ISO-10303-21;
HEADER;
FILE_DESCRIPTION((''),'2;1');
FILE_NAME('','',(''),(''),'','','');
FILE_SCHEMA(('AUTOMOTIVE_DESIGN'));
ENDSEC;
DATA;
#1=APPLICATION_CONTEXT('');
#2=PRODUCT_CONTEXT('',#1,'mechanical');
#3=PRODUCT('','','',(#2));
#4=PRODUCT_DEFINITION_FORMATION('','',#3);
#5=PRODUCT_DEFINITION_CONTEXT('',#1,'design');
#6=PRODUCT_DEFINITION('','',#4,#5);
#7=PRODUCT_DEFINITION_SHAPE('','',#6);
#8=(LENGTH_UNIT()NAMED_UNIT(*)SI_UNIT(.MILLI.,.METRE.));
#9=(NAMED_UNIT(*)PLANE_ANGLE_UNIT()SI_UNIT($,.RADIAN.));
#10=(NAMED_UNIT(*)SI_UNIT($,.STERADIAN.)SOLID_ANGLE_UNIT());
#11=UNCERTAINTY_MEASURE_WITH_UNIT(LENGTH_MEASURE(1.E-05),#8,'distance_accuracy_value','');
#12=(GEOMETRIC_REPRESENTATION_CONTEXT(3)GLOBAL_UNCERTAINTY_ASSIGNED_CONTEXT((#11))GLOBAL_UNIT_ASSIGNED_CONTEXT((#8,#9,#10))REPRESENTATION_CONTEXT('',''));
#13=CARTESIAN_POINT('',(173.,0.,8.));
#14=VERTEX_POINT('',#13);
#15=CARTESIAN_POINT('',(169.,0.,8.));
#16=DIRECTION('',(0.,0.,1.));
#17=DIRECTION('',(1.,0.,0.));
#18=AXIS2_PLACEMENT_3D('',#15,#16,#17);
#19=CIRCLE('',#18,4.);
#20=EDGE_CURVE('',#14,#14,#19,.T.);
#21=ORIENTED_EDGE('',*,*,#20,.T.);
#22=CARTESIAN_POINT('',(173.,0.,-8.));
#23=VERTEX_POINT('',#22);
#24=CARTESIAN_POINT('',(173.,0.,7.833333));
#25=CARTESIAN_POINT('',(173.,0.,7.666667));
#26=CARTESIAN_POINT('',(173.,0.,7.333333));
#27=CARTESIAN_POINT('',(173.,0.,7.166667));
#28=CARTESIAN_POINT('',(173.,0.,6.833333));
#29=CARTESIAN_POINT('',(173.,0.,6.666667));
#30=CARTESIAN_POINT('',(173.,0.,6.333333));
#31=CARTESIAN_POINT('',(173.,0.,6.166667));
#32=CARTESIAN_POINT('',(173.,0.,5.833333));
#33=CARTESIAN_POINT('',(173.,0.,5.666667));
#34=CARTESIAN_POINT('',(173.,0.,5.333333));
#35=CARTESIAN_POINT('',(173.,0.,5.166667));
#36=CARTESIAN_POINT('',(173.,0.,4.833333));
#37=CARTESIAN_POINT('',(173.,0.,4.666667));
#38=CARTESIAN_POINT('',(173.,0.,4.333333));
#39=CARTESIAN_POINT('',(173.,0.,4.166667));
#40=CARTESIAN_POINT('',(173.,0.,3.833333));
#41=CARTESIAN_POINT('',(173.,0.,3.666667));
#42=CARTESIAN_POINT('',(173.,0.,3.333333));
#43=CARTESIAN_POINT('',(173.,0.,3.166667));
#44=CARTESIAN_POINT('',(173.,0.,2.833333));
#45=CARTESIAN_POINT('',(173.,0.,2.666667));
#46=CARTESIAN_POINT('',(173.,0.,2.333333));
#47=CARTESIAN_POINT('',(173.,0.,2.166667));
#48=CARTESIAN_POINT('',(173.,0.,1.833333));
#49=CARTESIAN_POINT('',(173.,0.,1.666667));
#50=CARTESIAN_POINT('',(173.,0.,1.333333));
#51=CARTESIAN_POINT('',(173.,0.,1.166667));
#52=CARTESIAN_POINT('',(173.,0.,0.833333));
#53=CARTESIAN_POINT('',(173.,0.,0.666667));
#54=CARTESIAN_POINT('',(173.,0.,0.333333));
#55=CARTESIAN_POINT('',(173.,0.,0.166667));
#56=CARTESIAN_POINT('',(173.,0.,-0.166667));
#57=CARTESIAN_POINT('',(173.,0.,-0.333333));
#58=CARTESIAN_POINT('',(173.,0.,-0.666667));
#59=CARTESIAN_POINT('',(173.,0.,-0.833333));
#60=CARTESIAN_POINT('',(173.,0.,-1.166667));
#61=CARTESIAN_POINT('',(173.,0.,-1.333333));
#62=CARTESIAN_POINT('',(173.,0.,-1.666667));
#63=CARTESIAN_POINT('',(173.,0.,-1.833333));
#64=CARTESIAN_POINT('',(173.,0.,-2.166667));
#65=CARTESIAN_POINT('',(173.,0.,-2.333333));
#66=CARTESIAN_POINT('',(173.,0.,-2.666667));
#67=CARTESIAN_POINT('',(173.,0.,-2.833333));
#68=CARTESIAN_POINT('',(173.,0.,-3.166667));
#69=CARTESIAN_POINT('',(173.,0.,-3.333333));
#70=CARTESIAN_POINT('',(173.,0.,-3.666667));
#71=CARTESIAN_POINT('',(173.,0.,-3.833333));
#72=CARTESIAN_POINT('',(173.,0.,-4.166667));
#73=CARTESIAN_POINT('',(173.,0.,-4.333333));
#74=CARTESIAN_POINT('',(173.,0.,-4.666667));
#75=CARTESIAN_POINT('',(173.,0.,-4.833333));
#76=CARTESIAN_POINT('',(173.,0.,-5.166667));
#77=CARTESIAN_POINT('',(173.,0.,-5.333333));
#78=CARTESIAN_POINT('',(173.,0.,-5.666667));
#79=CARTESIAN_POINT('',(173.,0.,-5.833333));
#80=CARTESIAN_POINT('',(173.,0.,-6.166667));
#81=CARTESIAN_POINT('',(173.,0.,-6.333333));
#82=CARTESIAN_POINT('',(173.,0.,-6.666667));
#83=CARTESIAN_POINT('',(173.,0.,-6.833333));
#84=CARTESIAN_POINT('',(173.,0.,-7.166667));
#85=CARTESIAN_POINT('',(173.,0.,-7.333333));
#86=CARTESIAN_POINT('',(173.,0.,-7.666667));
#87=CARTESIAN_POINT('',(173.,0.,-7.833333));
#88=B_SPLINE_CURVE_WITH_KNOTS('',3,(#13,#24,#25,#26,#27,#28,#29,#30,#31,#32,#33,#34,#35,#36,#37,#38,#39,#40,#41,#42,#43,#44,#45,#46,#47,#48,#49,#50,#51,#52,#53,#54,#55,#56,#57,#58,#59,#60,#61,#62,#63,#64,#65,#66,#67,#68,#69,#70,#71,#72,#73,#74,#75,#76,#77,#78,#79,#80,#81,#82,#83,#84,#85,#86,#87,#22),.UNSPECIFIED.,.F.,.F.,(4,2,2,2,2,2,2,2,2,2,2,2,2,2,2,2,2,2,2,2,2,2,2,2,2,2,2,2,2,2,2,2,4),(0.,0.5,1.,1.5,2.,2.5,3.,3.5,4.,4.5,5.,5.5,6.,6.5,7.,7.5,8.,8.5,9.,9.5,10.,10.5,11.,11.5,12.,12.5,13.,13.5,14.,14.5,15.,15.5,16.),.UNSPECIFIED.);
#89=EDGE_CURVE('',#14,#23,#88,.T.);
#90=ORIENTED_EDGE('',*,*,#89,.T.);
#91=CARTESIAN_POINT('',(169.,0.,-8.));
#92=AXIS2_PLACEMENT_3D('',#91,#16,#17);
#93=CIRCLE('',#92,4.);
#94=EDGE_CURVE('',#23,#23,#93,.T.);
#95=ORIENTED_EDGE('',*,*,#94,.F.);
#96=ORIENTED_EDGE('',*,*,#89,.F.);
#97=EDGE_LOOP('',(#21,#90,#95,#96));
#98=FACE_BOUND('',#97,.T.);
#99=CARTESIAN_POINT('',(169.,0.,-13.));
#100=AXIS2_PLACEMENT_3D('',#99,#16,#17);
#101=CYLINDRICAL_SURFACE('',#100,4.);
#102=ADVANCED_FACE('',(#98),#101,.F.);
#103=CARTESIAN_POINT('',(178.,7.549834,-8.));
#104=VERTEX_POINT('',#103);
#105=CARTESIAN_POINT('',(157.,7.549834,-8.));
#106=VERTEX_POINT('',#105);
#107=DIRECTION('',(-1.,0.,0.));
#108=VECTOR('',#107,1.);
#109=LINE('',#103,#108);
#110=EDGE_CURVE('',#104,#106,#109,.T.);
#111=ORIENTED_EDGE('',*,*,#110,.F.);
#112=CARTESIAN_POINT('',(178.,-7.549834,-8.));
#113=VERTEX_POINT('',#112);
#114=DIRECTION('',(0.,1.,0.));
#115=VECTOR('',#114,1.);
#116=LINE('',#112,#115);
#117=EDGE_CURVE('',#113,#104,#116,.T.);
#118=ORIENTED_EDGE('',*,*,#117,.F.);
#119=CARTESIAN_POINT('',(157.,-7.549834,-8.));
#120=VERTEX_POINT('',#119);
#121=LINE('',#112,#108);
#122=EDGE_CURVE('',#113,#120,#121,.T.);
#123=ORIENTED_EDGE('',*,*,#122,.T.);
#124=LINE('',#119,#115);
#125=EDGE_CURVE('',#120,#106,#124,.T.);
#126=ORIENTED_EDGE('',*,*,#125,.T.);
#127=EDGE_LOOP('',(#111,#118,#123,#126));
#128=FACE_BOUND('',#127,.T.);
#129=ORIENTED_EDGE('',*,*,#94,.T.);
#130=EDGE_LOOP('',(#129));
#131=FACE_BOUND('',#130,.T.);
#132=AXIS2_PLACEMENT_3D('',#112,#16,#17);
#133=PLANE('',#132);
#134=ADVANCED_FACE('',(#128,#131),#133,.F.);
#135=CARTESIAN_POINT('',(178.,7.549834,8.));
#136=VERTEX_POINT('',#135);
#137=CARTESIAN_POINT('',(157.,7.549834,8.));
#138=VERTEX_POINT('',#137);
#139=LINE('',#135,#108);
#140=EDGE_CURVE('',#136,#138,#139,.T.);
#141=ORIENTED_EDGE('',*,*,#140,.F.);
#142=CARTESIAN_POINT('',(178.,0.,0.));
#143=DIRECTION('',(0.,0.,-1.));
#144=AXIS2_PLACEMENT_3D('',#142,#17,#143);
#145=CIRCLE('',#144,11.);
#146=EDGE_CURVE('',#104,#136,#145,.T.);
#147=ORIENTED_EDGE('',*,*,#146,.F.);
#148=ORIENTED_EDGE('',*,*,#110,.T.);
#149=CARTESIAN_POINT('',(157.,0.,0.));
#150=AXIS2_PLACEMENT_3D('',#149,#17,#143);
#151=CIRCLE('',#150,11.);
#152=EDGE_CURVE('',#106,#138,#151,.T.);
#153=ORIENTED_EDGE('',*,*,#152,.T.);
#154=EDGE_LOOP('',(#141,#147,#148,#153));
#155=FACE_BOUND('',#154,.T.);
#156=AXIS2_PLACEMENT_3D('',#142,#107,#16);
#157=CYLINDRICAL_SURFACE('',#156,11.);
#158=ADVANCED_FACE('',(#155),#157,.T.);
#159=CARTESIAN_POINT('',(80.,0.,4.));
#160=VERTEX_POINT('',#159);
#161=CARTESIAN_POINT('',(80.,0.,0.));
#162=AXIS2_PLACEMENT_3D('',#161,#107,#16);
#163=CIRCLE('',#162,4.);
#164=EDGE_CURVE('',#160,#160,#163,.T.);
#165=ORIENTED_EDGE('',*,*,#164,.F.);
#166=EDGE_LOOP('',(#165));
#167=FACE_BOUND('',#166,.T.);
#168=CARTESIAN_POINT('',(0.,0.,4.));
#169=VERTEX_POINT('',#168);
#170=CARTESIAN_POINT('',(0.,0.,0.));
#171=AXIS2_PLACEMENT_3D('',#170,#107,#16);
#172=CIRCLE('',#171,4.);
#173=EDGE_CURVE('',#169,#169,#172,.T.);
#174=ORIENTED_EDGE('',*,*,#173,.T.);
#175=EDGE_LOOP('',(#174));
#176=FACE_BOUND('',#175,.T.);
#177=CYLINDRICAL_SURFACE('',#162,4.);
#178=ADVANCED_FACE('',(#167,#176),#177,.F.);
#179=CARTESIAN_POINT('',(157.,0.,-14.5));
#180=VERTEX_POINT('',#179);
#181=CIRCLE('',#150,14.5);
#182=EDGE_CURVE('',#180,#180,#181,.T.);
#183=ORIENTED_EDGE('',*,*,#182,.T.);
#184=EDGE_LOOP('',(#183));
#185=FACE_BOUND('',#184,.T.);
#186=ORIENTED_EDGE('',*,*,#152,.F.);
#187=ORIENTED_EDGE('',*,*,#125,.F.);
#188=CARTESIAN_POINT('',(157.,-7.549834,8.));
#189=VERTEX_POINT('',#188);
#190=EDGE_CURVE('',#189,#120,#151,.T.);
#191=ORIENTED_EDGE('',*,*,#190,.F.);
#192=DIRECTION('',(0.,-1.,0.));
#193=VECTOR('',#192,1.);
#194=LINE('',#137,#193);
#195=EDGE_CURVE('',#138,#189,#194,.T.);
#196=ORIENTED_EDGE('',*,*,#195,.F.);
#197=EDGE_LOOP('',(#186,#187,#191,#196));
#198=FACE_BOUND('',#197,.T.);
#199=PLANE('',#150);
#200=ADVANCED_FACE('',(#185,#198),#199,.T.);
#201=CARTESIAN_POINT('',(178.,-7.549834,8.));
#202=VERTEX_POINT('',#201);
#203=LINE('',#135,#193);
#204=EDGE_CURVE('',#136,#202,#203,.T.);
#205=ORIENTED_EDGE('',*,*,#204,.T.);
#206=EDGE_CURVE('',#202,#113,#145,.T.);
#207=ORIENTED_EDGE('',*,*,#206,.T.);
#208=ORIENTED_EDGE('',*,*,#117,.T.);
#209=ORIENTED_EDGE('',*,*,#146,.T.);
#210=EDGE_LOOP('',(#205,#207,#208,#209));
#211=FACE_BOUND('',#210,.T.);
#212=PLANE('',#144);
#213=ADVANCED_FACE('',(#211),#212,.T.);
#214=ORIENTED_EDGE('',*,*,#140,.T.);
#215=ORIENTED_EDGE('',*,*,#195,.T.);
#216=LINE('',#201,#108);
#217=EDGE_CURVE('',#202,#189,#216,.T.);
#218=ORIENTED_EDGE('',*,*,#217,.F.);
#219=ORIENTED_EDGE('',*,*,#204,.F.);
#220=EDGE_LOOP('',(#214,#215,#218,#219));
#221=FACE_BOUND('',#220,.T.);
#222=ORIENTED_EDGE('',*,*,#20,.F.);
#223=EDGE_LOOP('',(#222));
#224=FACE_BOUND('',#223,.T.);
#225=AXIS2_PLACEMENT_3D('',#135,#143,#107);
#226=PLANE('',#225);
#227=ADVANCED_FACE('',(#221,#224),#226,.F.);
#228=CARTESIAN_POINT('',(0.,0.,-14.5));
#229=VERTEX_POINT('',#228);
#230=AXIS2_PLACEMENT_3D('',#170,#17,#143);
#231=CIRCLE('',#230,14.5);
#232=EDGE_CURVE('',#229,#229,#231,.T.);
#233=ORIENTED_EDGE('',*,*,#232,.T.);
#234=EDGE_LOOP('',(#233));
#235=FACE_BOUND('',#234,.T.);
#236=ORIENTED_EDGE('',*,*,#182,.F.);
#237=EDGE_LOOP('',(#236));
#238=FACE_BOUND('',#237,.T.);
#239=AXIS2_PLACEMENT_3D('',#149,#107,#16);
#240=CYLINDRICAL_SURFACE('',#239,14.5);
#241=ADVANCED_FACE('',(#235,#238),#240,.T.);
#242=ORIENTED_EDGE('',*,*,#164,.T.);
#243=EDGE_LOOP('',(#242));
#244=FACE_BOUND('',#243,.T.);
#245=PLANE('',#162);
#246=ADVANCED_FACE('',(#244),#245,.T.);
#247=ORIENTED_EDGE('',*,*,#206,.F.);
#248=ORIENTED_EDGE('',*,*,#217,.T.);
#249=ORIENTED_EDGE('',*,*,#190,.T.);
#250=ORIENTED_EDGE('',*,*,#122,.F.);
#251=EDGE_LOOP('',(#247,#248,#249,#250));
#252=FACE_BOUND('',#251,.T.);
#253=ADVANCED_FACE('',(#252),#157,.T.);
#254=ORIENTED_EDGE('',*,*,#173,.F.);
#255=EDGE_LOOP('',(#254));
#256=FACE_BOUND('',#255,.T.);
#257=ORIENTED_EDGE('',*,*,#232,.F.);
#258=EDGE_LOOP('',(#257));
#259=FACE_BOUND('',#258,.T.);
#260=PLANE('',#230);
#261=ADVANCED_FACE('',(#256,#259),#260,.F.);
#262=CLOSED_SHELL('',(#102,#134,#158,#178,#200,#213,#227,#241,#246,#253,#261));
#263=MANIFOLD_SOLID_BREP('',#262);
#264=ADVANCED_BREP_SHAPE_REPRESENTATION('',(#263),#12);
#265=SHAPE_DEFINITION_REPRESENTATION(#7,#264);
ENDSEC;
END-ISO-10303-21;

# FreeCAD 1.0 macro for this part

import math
import FreeCAD as App
import Part
import Sketcher

doc = App.newDocument("Part")
body = doc.addObject("PartDesign::Body", "Body")

sketch1 = body.newObject("Sketcher::SketchObject", "Sketch")
sketch1.AttachmentSupport = (doc.getObject("YZ_Plane"), [""])
sketch1.MapMode = "FlatFace"
sketch1.addGeometry(Part.Circle(App.Vector(0, 0, 0), App.Vector(0, 0, 1), 14), False)
sketch1.addConstraint([
    Sketcher.Constraint("Coincident", 0, 3, -1, 1),
    Sketcher.Constraint("Diameter", 0, 29.0),
])
pad1 = body.newObject("PartDesign::Pad", "Pad")
pad1.Profile = sketch1
pad1.Length = 157

sketch2 = body.newObject("Sketcher::SketchObject", "Sketch001")
sketch2.AttachmentSupport = (doc.getObject("YZ_Plane"), [""])
sketch2.MapMode = "FlatFace"
sketch2.AttachmentOffset = App.Placement(App.Vector(0, 0, 157), App.Rotation())
sketch2.addGeometry([
    Part.LineSegment(App.Vector(8, 8, 0), App.Vector(-8, 8, 0)),
    Part.ArcOfCircle(Part.Circle(App.Vector(0, 0, 0), App.Vector(0, 0, 1), 11), math.radians(133), math.radians(227)),
    Part.LineSegment(App.Vector(-8, -8, 0), App.Vector(8, -8, 0)),
    Part.ArcOfCircle(Part.Circle(App.Vector(0, 0, 0), App.Vector(0, 0, 1), 11), math.radians(-47), math.radians(47)),
], False)
sketch2.addConstraint([
    Sketcher.Constraint("Coincident", 0, 2, 1, 1),
    Sketcher.Constraint("Coincident", 1, 2, 2, 1),
    Sketcher.Constraint("Coincident", 2, 2, 3, 1),
    Sketcher.Constraint("Coincident", 3, 2, 0, 1),
    Sketcher.Constraint("Horizontal", 0),
    Sketcher.Constraint("Horizontal", 2),
    Sketcher.Constraint("Coincident", 1, 3, -1, 1),
    Sketcher.Constraint("Coincident", 3, 3, -1, 1),
    Sketcher.Constraint("Equal", 1, 3),
    Sketcher.Constraint("Vertical", 0, 2, 1, 2),
    Sketcher.Constraint("Radius", 1, 11.0),
    Sketcher.Constraint("DistanceY", -1, 1, 0, 2, 8.0),
])
pad2 = body.newObject("PartDesign::Pad", "Pad001")
pad2.Profile = sketch2
pad2.Length = 21

sketch3 = body.newObject("Sketcher::SketchObject", "Sketch002")
sketch3.AttachmentSupport = (doc.getObject("XY_Plane"), [""])
sketch3.MapMode = "FlatFace"
sketch3.AttachmentOffset = App.Placement(App.Vector(0, 0, 8), App.Rotation())
sketch3.addGeometry(Part.Circle(App.Vector(169, 0, 0), App.Vector(0, 0, 1), 4), False)
sketch3.addConstraint([
    Sketcher.Constraint("PointOnObject", 0, 3, -1),
    Sketcher.Constraint("Diameter", 0, 8.0),
    Sketcher.Constraint("DistanceX", -1, 1, 0, 3, 169.0),
])
pocket1 = body.newObject("PartDesign::Pocket", "Pocket")
pocket1.Profile = sketch3
pocket1.Length = 21

sketch4 = body.newObject("Sketcher::SketchObject", "Sketch003")
sketch4.AttachmentSupport = (doc.getObject("YZ_Plane"), [""])
sketch4.MapMode = "FlatFace"
sketch4.addGeometry(Part.Circle(App.Vector(0, 0, 0), App.Vector(0, 0, 1), 4), False)
sketch4.addConstraint([
    Sketcher.Constraint("Coincident", 0, 3, -1, 1),
    Sketcher.Constraint("Diameter", 0, 8.0),
])
pocket2 = body.newObject("PartDesign::Pocket", "Pocket001")
pocket2.Profile = sketch4
pocket2.Length = 80
pocket2.Reversed = True

doc.recompute()
